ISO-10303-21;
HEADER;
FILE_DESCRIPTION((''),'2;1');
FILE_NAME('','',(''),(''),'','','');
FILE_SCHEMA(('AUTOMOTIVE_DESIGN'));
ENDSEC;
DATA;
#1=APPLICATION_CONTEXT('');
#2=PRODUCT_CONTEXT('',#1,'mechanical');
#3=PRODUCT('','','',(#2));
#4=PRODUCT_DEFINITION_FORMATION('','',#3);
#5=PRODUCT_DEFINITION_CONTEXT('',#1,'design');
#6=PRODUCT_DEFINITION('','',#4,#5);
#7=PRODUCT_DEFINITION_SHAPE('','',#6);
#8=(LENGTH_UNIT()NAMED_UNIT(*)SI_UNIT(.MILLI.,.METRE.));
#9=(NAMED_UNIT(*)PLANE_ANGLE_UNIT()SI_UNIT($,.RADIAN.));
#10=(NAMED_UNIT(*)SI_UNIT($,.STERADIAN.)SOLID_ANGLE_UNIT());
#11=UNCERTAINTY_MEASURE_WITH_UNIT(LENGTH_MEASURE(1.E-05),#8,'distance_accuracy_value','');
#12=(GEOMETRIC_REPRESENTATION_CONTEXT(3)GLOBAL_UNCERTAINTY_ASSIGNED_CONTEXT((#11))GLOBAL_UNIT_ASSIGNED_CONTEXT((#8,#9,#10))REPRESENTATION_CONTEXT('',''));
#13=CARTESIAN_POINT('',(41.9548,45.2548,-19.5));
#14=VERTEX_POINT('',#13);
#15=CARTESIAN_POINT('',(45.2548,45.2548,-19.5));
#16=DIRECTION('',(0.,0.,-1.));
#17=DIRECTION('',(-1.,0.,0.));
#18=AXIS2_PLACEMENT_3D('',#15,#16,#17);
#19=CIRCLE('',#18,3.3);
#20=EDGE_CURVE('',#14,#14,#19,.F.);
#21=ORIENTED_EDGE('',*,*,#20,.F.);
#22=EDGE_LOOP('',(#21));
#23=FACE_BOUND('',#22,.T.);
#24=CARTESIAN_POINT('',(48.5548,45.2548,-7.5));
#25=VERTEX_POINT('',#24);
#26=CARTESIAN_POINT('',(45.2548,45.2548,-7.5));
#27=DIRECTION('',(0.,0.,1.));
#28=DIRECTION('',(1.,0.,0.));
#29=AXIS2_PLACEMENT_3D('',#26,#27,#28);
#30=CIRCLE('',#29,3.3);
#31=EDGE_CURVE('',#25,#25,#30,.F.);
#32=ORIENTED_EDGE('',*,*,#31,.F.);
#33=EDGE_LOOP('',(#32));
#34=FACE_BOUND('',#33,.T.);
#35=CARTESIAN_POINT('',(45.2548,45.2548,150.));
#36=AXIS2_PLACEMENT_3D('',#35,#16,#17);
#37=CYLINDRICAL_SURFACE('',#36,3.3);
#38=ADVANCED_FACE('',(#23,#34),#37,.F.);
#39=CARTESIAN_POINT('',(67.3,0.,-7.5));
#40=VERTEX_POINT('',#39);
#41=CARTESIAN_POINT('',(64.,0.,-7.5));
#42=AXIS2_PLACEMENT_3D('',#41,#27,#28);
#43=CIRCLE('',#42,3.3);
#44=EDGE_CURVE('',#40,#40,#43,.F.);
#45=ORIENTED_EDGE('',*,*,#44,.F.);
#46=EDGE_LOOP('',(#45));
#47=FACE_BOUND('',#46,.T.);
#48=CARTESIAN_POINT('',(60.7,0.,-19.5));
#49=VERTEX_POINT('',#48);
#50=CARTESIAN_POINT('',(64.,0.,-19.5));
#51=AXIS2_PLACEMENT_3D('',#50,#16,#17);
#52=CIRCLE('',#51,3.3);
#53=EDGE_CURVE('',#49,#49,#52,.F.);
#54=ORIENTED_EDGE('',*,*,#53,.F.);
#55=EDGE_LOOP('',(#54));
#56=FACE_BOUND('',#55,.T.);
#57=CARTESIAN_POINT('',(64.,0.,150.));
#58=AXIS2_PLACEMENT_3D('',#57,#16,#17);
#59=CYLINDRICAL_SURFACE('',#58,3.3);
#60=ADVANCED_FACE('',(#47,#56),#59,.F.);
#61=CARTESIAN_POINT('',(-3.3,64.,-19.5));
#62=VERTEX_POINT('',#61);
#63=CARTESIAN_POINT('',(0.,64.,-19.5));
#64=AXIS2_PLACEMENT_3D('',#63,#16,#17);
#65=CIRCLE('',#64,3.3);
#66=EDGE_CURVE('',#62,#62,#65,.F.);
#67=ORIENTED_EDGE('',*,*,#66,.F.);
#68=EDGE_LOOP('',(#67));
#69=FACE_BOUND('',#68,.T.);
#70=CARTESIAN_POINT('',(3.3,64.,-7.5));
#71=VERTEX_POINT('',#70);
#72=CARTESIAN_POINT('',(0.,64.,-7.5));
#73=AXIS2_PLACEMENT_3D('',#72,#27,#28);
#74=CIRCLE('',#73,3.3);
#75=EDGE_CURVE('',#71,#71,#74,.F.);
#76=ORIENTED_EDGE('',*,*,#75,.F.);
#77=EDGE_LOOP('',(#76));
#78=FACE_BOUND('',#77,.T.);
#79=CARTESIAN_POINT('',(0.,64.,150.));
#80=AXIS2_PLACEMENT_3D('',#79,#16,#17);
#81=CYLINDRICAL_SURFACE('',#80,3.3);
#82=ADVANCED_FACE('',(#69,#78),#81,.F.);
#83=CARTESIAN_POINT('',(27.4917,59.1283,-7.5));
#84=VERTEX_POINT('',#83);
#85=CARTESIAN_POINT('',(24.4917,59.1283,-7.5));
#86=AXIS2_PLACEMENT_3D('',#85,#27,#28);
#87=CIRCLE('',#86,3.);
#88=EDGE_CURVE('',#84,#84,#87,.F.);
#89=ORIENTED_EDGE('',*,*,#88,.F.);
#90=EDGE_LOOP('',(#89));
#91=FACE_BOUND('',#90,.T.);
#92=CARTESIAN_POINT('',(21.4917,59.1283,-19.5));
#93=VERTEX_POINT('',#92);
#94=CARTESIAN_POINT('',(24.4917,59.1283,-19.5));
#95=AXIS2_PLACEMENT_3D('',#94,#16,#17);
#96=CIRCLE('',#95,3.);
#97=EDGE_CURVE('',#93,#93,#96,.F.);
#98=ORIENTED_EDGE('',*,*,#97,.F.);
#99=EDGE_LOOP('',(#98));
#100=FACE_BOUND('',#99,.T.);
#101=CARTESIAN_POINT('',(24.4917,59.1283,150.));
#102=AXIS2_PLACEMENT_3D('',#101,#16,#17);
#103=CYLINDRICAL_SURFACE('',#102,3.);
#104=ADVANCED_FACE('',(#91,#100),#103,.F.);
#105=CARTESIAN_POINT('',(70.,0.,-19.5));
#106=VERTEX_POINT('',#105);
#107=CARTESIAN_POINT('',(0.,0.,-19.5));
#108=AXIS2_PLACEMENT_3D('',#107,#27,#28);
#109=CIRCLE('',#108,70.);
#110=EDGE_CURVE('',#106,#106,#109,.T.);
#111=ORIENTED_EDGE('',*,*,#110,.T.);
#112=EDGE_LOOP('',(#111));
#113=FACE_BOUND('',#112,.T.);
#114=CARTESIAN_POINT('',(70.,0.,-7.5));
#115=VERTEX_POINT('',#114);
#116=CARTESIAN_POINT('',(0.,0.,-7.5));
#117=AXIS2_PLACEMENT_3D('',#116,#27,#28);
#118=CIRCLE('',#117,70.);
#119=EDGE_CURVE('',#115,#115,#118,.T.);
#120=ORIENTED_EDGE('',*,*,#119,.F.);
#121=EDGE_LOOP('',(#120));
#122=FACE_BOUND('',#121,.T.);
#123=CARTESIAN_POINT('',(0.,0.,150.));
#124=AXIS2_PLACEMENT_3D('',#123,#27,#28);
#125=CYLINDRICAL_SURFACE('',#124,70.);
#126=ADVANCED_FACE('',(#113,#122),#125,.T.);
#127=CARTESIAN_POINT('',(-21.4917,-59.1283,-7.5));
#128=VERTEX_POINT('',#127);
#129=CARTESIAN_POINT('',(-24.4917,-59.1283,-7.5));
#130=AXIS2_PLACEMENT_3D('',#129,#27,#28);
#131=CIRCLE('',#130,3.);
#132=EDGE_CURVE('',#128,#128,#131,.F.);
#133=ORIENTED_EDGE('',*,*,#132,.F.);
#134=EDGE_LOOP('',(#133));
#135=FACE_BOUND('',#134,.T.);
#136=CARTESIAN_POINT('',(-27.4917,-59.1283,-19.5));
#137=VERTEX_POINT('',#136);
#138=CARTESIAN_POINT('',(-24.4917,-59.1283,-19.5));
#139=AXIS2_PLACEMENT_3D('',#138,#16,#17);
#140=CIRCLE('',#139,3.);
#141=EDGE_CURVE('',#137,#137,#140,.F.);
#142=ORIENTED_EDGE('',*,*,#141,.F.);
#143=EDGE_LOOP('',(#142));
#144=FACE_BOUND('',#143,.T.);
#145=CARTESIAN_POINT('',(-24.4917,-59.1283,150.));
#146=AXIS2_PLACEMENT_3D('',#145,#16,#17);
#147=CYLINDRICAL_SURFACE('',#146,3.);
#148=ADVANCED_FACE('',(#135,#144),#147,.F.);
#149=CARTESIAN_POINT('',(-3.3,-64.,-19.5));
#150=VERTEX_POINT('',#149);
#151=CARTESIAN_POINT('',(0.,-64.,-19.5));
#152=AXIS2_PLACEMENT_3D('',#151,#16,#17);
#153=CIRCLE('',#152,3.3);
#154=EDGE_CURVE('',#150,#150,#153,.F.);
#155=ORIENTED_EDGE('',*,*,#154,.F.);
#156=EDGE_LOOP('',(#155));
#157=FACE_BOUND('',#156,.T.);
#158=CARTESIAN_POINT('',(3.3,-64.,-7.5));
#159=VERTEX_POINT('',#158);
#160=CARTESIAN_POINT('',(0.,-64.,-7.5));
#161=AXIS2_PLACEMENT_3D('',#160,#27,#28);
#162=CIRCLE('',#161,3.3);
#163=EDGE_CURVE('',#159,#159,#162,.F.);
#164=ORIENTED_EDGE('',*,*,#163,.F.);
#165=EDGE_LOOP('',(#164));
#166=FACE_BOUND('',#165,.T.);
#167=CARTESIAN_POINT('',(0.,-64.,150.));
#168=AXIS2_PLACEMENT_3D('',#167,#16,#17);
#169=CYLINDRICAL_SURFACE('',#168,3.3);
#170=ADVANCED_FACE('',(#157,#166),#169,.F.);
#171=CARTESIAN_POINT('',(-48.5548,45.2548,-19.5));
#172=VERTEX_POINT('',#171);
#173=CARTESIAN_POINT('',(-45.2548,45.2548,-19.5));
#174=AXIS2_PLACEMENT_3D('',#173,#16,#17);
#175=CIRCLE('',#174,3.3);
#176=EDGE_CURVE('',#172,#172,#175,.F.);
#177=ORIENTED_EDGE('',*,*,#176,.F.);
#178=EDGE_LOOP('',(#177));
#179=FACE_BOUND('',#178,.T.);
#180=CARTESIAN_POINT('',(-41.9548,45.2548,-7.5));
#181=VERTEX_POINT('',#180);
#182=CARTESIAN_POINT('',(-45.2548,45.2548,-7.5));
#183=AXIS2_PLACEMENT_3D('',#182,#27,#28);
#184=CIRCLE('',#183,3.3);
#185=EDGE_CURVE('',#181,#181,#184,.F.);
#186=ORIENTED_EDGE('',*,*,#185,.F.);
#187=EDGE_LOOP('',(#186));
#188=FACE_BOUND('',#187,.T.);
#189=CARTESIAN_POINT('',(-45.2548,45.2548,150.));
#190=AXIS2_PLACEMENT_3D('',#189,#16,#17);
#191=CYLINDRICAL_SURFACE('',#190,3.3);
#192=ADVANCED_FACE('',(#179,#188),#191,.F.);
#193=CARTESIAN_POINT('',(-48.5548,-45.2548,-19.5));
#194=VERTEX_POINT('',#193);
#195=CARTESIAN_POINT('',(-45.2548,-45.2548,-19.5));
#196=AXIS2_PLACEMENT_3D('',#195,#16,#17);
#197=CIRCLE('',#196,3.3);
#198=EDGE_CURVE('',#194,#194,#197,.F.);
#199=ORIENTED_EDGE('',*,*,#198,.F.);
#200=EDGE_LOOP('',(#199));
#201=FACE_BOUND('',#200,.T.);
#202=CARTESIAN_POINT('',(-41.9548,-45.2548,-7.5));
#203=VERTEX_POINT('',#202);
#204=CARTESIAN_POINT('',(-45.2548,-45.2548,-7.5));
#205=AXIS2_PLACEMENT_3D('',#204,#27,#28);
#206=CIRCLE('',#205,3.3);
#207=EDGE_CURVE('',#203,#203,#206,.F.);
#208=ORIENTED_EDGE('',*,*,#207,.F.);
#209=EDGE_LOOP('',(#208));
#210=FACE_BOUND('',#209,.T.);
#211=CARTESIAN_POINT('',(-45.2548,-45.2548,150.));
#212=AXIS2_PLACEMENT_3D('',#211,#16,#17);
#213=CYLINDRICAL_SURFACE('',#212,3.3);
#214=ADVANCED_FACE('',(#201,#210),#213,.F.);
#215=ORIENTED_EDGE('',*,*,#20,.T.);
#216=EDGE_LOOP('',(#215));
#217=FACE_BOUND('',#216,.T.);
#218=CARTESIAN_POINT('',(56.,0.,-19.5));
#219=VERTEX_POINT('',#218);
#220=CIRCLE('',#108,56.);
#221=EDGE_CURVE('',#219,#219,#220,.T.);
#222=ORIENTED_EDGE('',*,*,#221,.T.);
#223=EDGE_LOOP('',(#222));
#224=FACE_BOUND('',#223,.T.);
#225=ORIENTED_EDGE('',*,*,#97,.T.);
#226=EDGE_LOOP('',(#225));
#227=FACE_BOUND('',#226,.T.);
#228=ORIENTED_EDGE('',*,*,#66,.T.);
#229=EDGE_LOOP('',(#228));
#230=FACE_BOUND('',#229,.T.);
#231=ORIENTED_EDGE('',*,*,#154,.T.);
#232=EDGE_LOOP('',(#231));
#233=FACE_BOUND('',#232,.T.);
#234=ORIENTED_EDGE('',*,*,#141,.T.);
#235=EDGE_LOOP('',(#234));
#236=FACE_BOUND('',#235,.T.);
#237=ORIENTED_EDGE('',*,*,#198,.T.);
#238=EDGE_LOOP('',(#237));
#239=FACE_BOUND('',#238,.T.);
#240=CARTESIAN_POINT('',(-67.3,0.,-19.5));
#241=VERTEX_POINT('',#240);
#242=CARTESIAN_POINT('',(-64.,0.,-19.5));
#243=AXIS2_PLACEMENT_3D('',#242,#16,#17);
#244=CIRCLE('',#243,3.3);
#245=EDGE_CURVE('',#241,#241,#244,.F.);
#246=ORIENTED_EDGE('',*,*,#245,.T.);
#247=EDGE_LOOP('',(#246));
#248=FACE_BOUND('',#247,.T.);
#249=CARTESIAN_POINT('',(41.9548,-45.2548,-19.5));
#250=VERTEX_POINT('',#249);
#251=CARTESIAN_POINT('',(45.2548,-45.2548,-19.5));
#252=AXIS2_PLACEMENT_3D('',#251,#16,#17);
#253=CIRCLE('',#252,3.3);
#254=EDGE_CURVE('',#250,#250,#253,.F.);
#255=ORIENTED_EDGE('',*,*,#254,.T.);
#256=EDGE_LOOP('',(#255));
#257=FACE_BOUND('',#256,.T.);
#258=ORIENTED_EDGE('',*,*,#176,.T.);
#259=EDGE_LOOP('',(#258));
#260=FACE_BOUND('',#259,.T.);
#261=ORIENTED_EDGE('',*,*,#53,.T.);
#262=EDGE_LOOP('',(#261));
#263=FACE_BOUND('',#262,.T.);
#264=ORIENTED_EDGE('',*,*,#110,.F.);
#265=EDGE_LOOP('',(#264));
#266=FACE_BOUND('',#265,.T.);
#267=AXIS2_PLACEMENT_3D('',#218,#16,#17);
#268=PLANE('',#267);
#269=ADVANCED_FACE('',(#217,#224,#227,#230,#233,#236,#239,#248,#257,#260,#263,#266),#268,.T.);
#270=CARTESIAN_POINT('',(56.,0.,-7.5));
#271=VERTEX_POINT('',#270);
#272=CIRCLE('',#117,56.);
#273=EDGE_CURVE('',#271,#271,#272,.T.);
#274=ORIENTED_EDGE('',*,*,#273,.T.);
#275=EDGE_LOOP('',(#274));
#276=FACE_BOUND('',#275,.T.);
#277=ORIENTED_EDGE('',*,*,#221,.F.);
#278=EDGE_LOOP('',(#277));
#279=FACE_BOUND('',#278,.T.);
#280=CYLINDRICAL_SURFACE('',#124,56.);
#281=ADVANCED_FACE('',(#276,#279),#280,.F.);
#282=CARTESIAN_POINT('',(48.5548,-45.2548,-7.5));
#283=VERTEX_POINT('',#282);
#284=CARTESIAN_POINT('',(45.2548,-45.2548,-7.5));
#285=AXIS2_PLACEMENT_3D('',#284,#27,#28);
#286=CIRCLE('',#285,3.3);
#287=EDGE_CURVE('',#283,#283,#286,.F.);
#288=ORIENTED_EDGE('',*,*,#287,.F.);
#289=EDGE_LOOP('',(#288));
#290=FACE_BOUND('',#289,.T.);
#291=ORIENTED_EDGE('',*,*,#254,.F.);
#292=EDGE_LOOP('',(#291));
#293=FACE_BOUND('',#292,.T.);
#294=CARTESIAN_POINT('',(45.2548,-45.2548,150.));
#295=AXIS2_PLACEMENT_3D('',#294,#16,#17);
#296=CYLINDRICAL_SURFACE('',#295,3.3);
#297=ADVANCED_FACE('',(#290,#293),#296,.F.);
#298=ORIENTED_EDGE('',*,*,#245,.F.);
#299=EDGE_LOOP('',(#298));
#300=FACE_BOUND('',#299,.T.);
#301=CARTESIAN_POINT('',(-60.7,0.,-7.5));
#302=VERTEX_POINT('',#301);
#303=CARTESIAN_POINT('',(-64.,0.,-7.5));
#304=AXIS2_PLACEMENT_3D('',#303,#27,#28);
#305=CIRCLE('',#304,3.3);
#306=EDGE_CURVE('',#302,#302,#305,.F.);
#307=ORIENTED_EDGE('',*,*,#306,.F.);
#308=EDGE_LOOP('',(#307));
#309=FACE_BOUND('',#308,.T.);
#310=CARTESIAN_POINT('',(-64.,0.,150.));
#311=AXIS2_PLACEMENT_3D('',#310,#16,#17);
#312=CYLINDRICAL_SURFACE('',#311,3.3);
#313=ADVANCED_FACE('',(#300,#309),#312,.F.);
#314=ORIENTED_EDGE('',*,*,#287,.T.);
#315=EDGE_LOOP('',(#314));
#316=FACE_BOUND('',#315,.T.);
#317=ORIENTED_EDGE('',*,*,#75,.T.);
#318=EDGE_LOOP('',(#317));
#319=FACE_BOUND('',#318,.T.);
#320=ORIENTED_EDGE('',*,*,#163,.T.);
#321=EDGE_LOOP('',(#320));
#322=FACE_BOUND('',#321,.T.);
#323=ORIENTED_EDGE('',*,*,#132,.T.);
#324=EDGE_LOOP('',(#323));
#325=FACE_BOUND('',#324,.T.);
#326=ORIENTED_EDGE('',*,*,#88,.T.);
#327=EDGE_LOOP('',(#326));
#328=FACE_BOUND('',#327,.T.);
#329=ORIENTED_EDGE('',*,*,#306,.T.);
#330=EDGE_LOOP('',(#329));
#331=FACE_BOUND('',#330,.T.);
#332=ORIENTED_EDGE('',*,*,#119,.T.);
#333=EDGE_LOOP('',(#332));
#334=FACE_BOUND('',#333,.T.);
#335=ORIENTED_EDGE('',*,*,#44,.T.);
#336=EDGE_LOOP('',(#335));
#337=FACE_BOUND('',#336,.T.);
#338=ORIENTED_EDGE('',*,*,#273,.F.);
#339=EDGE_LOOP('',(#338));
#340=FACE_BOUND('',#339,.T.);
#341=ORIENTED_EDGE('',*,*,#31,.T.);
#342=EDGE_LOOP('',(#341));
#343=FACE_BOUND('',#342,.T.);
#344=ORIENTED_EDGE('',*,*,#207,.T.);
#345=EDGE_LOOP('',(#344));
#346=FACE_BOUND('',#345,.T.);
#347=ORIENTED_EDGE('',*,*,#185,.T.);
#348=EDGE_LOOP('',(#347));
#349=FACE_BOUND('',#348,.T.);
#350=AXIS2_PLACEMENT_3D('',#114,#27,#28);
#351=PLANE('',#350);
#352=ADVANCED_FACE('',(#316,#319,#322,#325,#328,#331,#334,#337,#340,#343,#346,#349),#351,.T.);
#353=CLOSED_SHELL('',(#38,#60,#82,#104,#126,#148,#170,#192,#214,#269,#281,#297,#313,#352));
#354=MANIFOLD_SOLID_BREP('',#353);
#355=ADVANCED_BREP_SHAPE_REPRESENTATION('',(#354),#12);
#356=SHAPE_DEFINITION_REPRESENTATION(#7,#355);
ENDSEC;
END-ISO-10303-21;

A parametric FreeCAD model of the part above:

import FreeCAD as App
import Part
import Sketcher
from FreeCAD import Vector


def add_polygon(sketch, points):
    """Adds a closed chain of lines whose ends are joined by coincident constraints."""
    first, n = sketch.GeometryCount, len(points)
    for a, b in zip(points, points[1:] + points[:1]):
        sketch.addGeometry(Part.LineSegment(App.Vector(*a, 0), App.Vector(*b, 0)), False)
    for i in range(n):
        sketch.addConstraint(Sketcher.Constraint("Coincident", first + i, 2, first + (i + 1) % n, 1))

doc = App.newDocument("Part")
body = doc.addObject("PartDesign::Body", "Body")

# Sketch on XZ plane
sketch1 = body.newObject("Sketcher::SketchObject", "Sketch")
sketch1.AttachmentSupport = (doc.getObject("XZ_Plane"), [""])
sketch1.MapMode = "FlatFace"
add_polygon(sketch1, [(56, -20), (56, -8), (70, -8), (70, -20)])  # lines 0-3
sketch1.addConstraint([
    Sketcher.Constraint("Vertical", 0),
    Sketcher.Constraint("Horizontal", 1),
    Sketcher.Constraint("Vertical", 2),
    Sketcher.Constraint("Horizontal", 3),
    Sketcher.Constraint("DistanceX", 1, 1, 1, 2, 14.0),
    Sketcher.Constraint("DistanceY", 0, 1, 0, 2, 12.0),
    Sketcher.Constraint("DistanceX", -1, 1, 0, 2, 56.0),
    Sketcher.Constraint("DistanceY", 0, 2, -1, 1, 7.5),
])
revolution = body.newObject("PartDesign::Revolution", "Revolution")
revolution.Profile = sketch1
revolution.ReferenceAxis = (sketch1, ["V_Axis"])
revolution.Angle = 360

# Sketch on XY plane
sketch2 = body.newObject("Sketcher::SketchObject", "Sketch001")
sketch2.AttachmentSupport = (doc.getObject("XY_Plane"), [""])
sketch2.MapMode = "FlatFace"
sketch2.addGeometry([
    Part.Circle(Vector(64, 0, 0), Vector(0, 0, 1), 3.3),  # 0
    Part.Circle(Vector(45.3, 45.3, 0), Vector(0, 0, 1), 3.3),  # 1
    Part.Circle(Vector(0, 64, 0), Vector(0, 0, 1), 3.3),  # 2
    Part.Circle(Vector(-45.3, 45.3, 0), Vector(0, 0, 1), 3.3),  # 3
    Part.Circle(Vector(-64, 0, 0), Vector(0, 0, 1), 3.3),  # 4
    Part.Circle(Vector(-45.3, -45.3, 0), Vector(0, 0, 1), 3.3),  # 5
    Part.Circle(Vector(0, -64, 0), Vector(0, 0, 1), 3.3),  # 6
    Part.Circle(Vector(45.3, -45.3, 0), Vector(0, 0, 1), 3.3),  # 7
    Part.Circle(Vector(24.5, 59.1, 0), Vector(0, 0, 1), 3),  # 8
    Part.Circle(Vector(-24.5, -59.1, 0), Vector(0, 0, 1), 3),  # 9
], False)
sketch2.addConstraint([
    Sketcher.Constraint("Equal", 0, 1),
    Sketcher.Constraint("Equal", 1, 2),
    Sketcher.Constraint("Equal", 2, 3),
    Sketcher.Constraint("Equal", 3, 4),
    Sketcher.Constraint("Equal", 4, 5),
    Sketcher.Constraint("Equal", 5, 6),
    Sketcher.Constraint("Equal", 6, 7),
    Sketcher.Constraint("Equal", 8, 9),
    Sketcher.Constraint("Symmetric", 0, 3, 4, 3, -1, 1),
    Sketcher.Constraint("Symmetric", 1, 3, 5, 3, -1, 1),
    Sketcher.Constraint("Symmetric", 2, 3, 6, 3, -1, 1),
    Sketcher.Constraint("Symmetric", 3, 3, 7, 3, -1, 1),
    Sketcher.Constraint("Symmetric", 8, 3, 9, 3, -1, 1),
    Sketcher.Constraint("Symmetric", 1, 3, 3, 3, -2),
    Sketcher.Constraint("PointOnObject", 0, 3, -1),
    Sketcher.Constraint("PointOnObject", 2, 3, -2),
    Sketcher.Constraint("Diameter", 8, 6.0),
    Sketcher.Constraint("Diameter", 0, 6.6),
    Sketcher.Constraint("DistanceX", -1, 1, 0, 3, 64.0),
    Sketcher.Constraint("DistanceY", -1, 1, 2, 3, 64.0),
    Sketcher.Constraint("DistanceX", -1, 1, 1, 3, 45.2548),
    Sketcher.Constraint("DistanceY", -1, 1, 1, 3, 45.2548),
    Sketcher.Constraint("DistanceX", -1, 1, 8, 3, 24.4917),
    Sketcher.Constraint("DistanceY", -1, 1, 8, 3, 59.1283),
])
pocket1 = body.newObject("PartDesign::Pocket", "Pocket")
pocket1.Profile = sketch2
pocket1.Length = 300
pocket1.Midplane = True

doc.recompute()
